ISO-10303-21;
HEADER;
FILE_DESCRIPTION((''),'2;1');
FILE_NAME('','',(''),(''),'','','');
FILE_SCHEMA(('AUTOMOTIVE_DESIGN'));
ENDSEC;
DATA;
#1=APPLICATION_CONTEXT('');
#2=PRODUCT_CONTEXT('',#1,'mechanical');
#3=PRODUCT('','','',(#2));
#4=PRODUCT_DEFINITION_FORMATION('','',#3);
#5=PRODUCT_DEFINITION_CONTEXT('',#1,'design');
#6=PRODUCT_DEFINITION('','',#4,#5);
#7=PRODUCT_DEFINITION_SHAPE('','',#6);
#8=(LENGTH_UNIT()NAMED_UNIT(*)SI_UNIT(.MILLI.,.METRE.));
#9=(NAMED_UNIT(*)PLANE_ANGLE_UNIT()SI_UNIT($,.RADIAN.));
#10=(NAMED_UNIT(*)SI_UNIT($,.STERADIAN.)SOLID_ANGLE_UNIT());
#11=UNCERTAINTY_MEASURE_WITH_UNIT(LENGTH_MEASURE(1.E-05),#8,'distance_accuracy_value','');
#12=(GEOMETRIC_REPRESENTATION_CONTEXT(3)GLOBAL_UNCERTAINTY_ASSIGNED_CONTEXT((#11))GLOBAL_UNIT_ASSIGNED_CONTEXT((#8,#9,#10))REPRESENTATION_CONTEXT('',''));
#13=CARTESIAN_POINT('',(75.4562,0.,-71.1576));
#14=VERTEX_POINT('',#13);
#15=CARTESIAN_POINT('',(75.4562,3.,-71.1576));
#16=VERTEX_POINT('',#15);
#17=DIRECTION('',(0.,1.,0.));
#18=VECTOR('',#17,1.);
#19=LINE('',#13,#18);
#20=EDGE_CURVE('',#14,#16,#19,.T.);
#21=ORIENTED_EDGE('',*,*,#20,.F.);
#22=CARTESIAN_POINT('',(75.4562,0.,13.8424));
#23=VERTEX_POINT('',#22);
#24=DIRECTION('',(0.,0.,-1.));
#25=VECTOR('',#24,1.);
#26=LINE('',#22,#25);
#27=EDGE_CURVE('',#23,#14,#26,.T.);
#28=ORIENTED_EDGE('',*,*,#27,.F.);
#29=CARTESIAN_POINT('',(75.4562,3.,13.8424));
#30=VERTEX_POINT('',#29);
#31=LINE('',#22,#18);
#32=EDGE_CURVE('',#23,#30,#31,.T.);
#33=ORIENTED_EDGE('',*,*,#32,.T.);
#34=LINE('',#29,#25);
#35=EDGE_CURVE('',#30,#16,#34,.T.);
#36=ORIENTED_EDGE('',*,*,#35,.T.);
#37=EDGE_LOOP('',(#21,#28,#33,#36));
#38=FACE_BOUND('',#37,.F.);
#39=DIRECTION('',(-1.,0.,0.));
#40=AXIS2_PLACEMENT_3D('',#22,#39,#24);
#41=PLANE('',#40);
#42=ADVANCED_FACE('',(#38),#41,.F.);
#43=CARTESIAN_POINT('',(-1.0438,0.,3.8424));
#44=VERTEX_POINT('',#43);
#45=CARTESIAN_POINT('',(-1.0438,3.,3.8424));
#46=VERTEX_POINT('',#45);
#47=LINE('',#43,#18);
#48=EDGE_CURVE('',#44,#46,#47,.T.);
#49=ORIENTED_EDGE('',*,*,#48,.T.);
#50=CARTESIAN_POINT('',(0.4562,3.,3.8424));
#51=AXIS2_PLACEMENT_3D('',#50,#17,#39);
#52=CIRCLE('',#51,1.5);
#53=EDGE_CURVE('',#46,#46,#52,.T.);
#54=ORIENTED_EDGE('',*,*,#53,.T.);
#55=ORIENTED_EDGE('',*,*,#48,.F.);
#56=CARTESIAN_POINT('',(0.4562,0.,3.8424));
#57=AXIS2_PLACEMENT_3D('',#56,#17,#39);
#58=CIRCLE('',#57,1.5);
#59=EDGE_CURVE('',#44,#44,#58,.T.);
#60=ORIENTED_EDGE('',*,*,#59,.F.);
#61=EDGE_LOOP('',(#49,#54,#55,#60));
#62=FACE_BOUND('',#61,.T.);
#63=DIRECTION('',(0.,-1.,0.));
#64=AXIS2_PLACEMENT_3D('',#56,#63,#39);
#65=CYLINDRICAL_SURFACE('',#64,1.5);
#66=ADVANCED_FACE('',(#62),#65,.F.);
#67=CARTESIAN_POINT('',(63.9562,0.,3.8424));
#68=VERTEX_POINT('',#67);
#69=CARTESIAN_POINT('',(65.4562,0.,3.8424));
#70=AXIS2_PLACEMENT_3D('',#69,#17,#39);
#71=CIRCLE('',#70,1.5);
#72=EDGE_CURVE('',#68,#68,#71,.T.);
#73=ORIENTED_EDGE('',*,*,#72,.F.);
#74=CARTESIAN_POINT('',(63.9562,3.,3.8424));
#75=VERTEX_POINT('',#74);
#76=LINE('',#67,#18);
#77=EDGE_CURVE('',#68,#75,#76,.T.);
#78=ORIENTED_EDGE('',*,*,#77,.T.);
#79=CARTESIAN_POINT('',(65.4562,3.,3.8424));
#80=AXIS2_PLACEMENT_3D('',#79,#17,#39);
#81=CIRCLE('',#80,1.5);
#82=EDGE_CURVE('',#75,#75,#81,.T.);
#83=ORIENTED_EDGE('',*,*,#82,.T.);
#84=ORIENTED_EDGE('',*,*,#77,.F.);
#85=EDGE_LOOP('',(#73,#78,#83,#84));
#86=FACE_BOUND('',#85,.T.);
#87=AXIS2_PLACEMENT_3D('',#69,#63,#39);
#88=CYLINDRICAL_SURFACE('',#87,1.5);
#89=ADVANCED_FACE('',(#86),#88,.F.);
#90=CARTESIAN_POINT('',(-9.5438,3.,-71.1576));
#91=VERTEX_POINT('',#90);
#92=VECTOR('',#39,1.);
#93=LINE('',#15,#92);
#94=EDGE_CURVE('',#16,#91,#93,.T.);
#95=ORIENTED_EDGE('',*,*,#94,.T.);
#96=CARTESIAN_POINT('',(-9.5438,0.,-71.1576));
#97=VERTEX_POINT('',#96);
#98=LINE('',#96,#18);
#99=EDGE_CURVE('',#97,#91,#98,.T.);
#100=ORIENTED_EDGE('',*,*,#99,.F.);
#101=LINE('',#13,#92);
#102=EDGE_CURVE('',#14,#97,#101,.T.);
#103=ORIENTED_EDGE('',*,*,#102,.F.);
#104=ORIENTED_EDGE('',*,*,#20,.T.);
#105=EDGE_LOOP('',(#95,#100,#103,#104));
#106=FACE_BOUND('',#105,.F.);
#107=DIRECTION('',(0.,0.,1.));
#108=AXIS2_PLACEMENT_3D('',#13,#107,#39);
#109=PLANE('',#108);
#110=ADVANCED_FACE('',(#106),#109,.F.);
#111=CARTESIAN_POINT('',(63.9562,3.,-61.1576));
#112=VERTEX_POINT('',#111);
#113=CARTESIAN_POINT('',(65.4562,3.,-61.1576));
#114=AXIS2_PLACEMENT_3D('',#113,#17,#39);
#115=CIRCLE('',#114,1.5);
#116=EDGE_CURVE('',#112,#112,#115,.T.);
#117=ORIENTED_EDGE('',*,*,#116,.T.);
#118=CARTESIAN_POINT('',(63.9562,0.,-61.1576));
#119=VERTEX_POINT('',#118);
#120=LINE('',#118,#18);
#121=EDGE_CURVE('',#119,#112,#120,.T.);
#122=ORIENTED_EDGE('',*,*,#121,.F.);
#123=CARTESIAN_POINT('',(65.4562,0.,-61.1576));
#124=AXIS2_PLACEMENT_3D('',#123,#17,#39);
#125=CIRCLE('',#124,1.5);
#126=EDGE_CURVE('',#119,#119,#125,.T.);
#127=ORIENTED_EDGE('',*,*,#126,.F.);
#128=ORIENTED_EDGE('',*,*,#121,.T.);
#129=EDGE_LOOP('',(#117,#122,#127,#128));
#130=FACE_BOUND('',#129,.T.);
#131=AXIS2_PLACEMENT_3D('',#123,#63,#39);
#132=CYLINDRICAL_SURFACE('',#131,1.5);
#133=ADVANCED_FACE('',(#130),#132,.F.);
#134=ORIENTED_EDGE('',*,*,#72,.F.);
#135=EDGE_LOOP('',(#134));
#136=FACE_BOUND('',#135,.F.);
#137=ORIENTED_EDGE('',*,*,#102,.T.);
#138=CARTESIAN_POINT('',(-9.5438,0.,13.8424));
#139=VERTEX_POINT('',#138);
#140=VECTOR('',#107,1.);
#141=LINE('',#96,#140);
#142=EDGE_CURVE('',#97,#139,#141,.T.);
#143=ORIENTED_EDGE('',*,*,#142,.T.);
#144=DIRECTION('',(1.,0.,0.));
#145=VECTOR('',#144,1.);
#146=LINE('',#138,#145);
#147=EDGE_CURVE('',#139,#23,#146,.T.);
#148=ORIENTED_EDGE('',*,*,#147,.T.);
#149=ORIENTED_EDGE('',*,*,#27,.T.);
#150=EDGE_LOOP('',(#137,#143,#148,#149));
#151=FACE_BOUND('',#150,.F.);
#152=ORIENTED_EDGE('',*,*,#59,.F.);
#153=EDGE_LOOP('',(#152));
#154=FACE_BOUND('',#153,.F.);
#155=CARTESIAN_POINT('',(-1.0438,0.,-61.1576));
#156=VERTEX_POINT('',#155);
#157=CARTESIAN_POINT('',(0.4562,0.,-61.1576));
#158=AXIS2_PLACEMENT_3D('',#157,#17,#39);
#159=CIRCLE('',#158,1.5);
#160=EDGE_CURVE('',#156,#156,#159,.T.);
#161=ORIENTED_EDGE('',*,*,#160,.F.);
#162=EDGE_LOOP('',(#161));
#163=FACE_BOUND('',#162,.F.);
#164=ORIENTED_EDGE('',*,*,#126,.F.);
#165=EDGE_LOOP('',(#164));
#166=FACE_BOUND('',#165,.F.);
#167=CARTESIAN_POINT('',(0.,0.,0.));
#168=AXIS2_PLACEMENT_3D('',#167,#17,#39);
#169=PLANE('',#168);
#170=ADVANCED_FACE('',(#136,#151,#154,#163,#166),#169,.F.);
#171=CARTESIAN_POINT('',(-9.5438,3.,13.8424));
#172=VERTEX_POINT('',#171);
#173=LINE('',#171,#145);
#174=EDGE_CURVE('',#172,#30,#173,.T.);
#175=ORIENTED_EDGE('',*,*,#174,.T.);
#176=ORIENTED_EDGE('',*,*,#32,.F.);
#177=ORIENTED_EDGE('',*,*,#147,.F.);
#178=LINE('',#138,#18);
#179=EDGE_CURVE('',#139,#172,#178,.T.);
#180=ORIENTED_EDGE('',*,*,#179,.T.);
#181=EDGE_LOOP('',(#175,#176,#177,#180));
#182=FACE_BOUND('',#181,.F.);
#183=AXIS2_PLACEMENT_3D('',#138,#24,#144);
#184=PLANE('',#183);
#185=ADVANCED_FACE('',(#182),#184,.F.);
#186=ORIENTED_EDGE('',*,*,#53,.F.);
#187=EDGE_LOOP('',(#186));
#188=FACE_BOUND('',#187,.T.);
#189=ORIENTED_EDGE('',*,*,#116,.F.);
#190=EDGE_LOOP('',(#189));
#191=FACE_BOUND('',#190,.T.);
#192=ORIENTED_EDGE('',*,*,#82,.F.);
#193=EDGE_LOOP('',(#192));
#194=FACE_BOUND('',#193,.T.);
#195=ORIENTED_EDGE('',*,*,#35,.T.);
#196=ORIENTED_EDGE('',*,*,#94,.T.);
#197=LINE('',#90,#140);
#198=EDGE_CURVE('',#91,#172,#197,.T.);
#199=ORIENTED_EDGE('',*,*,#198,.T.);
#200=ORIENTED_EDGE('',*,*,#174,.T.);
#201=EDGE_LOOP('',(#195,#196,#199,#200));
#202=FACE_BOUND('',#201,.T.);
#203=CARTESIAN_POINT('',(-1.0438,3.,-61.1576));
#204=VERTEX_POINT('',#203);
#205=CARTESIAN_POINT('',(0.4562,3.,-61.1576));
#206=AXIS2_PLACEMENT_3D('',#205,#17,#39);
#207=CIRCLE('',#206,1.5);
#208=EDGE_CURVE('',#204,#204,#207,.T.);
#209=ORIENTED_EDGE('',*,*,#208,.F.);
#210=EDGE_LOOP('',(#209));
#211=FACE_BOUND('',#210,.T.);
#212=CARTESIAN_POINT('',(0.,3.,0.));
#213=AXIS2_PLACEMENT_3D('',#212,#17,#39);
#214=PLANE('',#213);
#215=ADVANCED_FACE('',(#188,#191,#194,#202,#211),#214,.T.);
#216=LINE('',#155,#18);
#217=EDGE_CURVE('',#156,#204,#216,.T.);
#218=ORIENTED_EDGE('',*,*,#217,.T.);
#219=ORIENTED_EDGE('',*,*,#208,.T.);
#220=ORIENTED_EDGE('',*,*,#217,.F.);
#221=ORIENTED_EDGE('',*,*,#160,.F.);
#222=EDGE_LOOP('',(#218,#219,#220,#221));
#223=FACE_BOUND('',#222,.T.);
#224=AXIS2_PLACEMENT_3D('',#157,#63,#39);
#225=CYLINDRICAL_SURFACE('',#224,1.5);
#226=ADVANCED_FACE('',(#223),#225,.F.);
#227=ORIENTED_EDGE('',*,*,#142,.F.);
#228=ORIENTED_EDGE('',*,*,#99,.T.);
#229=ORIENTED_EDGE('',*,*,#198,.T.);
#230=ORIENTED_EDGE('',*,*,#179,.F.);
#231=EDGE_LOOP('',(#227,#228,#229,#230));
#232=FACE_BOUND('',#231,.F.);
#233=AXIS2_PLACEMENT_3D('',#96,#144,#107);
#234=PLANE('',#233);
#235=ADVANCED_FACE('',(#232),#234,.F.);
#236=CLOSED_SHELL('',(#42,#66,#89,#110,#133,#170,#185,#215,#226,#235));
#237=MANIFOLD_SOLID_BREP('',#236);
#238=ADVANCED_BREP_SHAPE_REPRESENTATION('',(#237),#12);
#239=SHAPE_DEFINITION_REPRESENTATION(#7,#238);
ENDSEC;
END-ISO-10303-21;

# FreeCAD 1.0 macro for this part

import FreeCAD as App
import Part
import Sketcher
from FreeCAD import Vector
Q = App.Units.Quantity

doc = App.newDocument("Part")
body = doc.addObject("PartDesign::Body", "Body")

# Sketch on XZ plane
sketch1 = body.newObject("Sketcher::SketchObject", "Sketch")
sketch1.AttachmentSupport = (doc.getObject("XZ_Plane"), [""])
sketch1.MapMode = "FlatFace"
sketch1.addGeometry([
    Part.LineSegment(Vector(-9.5438, -71.1576, 0), Vector(-9.5438, 13.8424, 0)),  # 0
    Part.LineSegment(Vector(-9.5438, 13.8424, 0), Vector(75.4562, 13.8424, 0)),  # 1
    Part.LineSegment(Vector(75.4562, 13.8424, 0), Vector(75.4562, -71.1576, 0)),  # 2
    Part.LineSegment(Vector(75.4562, -71.1576, 0), Vector(-9.5438, -71.1576, 0)),  # 3
    Part.Circle(Vector(65.4562, -61.1576, 0), Vector(0, 0, 1), 1.5),  # 4
    Part.Circle(Vector(0.4562, -61.1576, 0), Vector(0, 0, 1), 1.5),  # 5
    Part.Circle(Vector(65.4562, 3.8424, 0), Vector(0, 0, 1), 1.5),  # 6
    Part.Circle(Vector(0.4562, 3.8424, 0), Vector(0, 0, 1), 1.5),  # 7
], False)
sketch1.addConstraint([
    Sketcher.Constraint("Coincident", 0, 2, 1, 1),
    Sketcher.Constraint("Coincident", 1, 2, 2, 1),
    Sketcher.Constraint("Coincident", 2, 2, 3, 1),
    Sketcher.Constraint("Coincident", 3, 2, 0, 1),
    Sketcher.Constraint("Vertical", 0),
    Sketcher.Constraint("Horizontal", 1),
    Sketcher.Constraint("Vertical", 2),
    Sketcher.Constraint("Horizontal", 3),
    Sketcher.Constraint("Equal", 4, 5),
    Sketcher.Constraint("Equal", 5, 6),
    Sketcher.Constraint("Equal", 6, 7),
    Sketcher.Constraint("Horizontal", 4, 3, 5, 3),
    Sketcher.Constraint("Horizontal", 6, 3, 7, 3),
    Sketcher.Constraint("Vertical", 4, 3, 6, 3),
    Sketcher.Constraint("Vertical", 5, 3, 7, 3),
    Sketcher.Constraint("Equal", 3, 0),
    Sketcher.Constraint("Diameter", 4, Q("3 mm")),
    Sketcher.Constraint("DistanceX", 1, 1, 1, 2, Q("85 mm")),
    Sketcher.Constraint("DistanceX", 5, 3, 4, 3, Q("65 mm")),
    Sketcher.Constraint("DistanceY", 4, 3, 6, 3, Q("65 mm")),
    Sketcher.Constraint("DistanceX", 0, 2, 7, 3, Q("10 mm")),
    Sketcher.Constraint("DistanceY", 7, 3, 0, 2, Q("10 mm")),
    Sketcher.Constraint("DistanceX", -1, 1, 4, 3, Q("65.4562 mm")),
    Sketcher.Constraint("DistanceY", 4, 3, -1, 1, Q("61.1576 mm")),
])
pad1 = body.newObject("PartDesign::Pad", "Pad")
pad1.Profile = sketch1
pad1.Length = 3
pad1.Reversed = True

doc.recompute()
